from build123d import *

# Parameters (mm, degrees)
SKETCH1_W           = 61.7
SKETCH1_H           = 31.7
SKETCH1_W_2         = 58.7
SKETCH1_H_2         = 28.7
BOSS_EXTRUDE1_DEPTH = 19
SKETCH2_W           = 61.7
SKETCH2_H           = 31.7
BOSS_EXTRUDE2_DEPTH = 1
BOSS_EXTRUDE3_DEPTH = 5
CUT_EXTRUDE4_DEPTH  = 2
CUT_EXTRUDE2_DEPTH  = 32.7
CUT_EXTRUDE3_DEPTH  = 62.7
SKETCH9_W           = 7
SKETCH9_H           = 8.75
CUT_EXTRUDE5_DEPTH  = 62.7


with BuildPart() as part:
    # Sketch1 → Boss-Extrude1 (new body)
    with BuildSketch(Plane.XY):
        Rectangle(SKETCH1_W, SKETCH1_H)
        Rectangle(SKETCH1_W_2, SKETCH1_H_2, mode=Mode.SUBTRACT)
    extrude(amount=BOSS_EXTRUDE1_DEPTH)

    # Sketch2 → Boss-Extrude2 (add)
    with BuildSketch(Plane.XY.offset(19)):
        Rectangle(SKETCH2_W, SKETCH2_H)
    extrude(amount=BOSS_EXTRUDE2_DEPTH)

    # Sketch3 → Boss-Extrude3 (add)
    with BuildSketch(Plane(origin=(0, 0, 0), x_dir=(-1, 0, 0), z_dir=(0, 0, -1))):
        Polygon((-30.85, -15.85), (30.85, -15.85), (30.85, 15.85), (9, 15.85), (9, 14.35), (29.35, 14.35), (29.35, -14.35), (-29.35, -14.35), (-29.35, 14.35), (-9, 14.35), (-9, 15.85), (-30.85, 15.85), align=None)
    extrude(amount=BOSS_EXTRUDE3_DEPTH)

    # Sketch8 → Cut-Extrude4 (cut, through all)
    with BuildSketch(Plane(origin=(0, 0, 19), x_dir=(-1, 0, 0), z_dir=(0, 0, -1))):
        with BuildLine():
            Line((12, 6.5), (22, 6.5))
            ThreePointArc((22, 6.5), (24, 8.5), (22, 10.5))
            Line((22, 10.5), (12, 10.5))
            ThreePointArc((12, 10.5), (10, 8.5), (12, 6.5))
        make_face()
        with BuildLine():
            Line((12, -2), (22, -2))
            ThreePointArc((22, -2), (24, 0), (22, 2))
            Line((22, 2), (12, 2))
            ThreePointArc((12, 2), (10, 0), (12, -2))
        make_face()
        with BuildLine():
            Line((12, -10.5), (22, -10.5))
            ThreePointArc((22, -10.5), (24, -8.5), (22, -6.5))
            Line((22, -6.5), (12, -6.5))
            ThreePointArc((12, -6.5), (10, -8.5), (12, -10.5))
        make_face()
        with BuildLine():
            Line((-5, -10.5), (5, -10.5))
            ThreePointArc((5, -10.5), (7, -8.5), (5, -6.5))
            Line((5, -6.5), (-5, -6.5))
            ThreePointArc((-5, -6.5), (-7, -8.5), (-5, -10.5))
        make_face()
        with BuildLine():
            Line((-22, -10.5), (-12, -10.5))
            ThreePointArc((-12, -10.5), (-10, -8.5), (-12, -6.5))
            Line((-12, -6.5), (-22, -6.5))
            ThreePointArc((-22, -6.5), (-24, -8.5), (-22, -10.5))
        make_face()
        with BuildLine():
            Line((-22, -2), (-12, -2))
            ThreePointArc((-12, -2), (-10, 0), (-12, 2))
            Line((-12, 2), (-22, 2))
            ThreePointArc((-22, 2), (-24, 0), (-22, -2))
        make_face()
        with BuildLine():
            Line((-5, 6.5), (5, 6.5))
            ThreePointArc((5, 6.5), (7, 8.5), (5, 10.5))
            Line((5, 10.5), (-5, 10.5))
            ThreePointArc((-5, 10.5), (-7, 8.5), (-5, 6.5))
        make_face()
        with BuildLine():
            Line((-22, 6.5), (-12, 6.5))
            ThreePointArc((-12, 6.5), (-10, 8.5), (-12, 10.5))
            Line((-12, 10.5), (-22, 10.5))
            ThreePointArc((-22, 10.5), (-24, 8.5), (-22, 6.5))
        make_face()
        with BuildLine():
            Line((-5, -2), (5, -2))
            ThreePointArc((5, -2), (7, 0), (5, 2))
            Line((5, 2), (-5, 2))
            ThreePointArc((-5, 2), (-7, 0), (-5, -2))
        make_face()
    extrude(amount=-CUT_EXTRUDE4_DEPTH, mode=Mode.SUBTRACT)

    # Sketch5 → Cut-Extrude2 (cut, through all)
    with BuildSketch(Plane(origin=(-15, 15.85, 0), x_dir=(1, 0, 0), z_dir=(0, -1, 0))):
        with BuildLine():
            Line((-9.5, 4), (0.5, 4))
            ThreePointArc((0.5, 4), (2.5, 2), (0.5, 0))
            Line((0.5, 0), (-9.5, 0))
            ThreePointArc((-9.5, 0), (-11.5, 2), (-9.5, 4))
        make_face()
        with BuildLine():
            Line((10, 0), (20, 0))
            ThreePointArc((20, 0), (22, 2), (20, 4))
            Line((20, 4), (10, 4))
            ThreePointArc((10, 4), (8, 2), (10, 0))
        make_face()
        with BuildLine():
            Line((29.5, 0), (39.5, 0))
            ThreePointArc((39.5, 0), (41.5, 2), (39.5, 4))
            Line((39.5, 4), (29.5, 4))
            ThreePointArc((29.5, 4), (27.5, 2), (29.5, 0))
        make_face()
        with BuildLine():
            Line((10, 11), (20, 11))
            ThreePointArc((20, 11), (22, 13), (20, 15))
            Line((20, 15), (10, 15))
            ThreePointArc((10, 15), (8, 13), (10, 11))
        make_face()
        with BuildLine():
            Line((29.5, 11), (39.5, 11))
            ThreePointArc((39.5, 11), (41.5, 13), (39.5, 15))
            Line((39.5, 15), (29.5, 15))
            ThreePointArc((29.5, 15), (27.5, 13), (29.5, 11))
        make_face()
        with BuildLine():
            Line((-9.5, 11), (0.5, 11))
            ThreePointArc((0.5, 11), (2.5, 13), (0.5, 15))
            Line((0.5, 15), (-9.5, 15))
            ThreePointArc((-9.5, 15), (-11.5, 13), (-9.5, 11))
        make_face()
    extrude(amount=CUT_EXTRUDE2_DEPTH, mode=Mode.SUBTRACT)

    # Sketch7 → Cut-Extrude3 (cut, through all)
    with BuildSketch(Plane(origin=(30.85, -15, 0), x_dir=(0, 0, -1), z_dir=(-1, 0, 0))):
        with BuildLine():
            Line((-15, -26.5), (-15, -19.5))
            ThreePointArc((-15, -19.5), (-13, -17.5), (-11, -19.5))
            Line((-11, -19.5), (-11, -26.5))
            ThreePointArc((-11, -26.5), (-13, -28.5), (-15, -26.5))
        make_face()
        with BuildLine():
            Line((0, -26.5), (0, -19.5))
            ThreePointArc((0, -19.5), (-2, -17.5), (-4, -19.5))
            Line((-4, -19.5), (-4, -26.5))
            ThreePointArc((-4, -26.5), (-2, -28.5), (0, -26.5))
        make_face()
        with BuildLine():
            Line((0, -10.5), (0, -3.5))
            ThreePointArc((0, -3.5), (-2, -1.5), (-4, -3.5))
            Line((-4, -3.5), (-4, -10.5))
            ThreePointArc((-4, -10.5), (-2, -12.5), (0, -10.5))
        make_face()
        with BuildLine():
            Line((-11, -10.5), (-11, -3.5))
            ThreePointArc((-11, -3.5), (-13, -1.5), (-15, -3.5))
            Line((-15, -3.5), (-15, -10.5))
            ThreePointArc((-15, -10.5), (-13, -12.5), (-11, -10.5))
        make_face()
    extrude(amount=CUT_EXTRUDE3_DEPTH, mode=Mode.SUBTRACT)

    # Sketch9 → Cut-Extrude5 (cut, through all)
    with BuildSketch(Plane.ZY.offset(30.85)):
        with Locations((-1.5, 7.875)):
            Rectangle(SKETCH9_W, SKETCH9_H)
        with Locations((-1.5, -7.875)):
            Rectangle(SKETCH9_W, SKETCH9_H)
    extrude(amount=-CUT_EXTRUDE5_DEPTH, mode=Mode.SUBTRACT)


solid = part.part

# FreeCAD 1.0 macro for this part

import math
import FreeCAD as App
import Part
import Sketcher

V = App.Vector
Q = App.Units.Quantity


def add_polygon(sketch, points):
    """Adds a closed chain of lines whose ends are joined by coincident constraints."""
    first, n = sketch.GeometryCount, len(points)
    for a, b in zip(points, points[1:] + points[:1]):
        sketch.addGeometry(Part.LineSegment(App.Vector(*a, 0), App.Vector(*b, 0)), False)
    for i in range(n):
        sketch.addConstraint(Sketcher.Constraint("Coincident", first + i, 2, first + (i + 1) % n, 1))

doc = App.newDocument("Part")
params = doc.addObject("Spreadsheet::Sheet", "Params")
for row, (alias, value) in enumerate([
    ("sketch1_width", "61.7 mm"),
    ("sketch1_width2", "58.7 mm"),
    ("sketch1_height", "31.7 mm"),
    ("sketch1_height2", "28.7 mm"),
    ("pad1_length", "19 mm"),
    ("sketch2_width", "61.7 mm"),
    ("sketch2_height", "31.7 mm"),
    ("pad2_length", "1 mm"),
    ("sketch3_width", "61.7 mm"),
    ("sketch3_width2", "58.7 mm"),
    ("sketch3_height", "31.7 mm"),
    ("sketch3_height2", "1.5 mm"),
    ("pad3_length", "5 mm"),
    ("sketch4_radius", "2 mm"),
    ("sketch4_width", "10 mm"),
    ("sketch5_radius", "2 mm"),
    ("sketch5_width", "10 mm"),
    ("sketch6_radius", "2 mm"),
    ("sketch6_width", "7 mm"),
    ("sketch7_height", "7 mm"),
    ("sketch7_width", "8.75 mm"),
], start=1):
    params.set(f"A{row}", alias)
    params.set(f"B{row}", "=" + value)
    params.setAlias(f"B{row}", alias)

body = doc.addObject("PartDesign::Body", "Body")

# Sketch on XY plane
sketch1 = body.newObject("Sketcher::SketchObject", "Sketch")
sketch1.AttachmentSupport = (doc.getObject("XY_Plane"), [""])
sketch1.MapMode = "FlatFace"
add_polygon(sketch1, [(-31, 16), (-31, -16), (31, -16), (31, 16)])  # lines 0-3
add_polygon(sketch1, [(29, -14), (-29, -14), (-29, 14), (29, 14)])  # lines 4-7
sketch1.addConstraint(Sketcher.Constraint("Vertical", 0))
sketch1.addConstraint(Sketcher.Constraint("Horizontal", 1))
sketch1.addConstraint(Sketcher.Constraint("Vertical", 2))
sketch1.addConstraint(Sketcher.Constraint("Horizontal", 3))
sketch1.addConstraint(Sketcher.Constraint("Horizontal", 4))
sketch1.addConstraint(Sketcher.Constraint("Vertical", 5))
sketch1.addConstraint(Sketcher.Constraint("Horizontal", 6))
sketch1.addConstraint(Sketcher.Constraint("Vertical", 7))
sketch1.addConstraint(Sketcher.Constraint("Symmetric", 0, 2, 2, 2, -1, 1))
sketch1.addConstraint(Sketcher.Constraint("Symmetric", 4, 2, 6, 2, -1, 1))
sketch1.addConstraint(Sketcher.Constraint("DistanceX", 1, 1, 1, 2, Q("61.7 mm")))
sketch1.addConstraint(Sketcher.Constraint("DistanceX", 4, 2, 4, 1, Q("58.7 mm")))
sketch1.addConstraint(Sketcher.Constraint("DistanceY", 0, 2, 0, 1, Q("31.7 mm")))
sketch1.addConstraint(Sketcher.Constraint("DistanceY", 5, 1, 5, 2, Q("28.7 mm")))
sketch1.setExpression("Constraints[18]", "Params.sketch1_width")
sketch1.setExpression("Constraints[19]", "Params.sketch1_width2")
sketch1.setExpression("Constraints[20]", "Params.sketch1_height")
sketch1.setExpression("Constraints[21]", "Params.sketch1_height2")
pad1 = body.newObject("PartDesign::Pad", "Pad")
pad1.Profile = sketch1
pad1.setExpression("Length", "Params.pad1_length")

# Sketch on XY plane
sketch2 = body.newObject("Sketcher::SketchObject", "Sketch001")
sketch2.AttachmentSupport = (doc.getObject("XY_Plane"), [""])
sketch2.MapMode = "FlatFace"
sketch2.AttachmentOffset = App.Placement(V(0, 0, 19), App.Rotation())
add_polygon(sketch2, [(-31, 16), (-31, -16), (31, -16), (31, 16)])  # lines 0-3
sketch2.addConstraint(Sketcher.Constraint("Vertical", 0))
sketch2.addConstraint(Sketcher.Constraint("Horizontal", 1))
sketch2.addConstraint(Sketcher.Constraint("Vertical", 2))
sketch2.addConstraint(Sketcher.Constraint("Horizontal", 3))
sketch2.addConstraint(Sketcher.Constraint("Symmetric", 0, 2, 2, 2, -1, 1))
sketch2.addConstraint(Sketcher.Constraint("DistanceX", 1, 1, 1, 2, Q("61.7 mm")))
sketch2.addConstraint(Sketcher.Constraint("DistanceY", 0, 2, 0, 1, Q("31.7 mm")))
sketch2.setExpression("Constraints[9]", "Params.sketch2_width")
sketch2.setExpression("Constraints[10]", "Params.sketch2_height")
pad2 = body.newObject("PartDesign::Pad", "Pad001")
pad2.Profile = sketch2
pad2.setExpression("Length", "Params.pad2_length")

# Sketch on XY plane
sketch3 = body.newObject("Sketcher::SketchObject", "Sketch002")
sketch3.AttachmentSupport = (doc.getObject("XY_Plane"), [""])
sketch3.MapMode = "FlatFace"
add_polygon(sketch3, [(30.9, -15.8), (-30.9, -15.8), (-30.9, 15.8), (-9, 15.8), (-9, 14.3), (-29.4, 14.3), (-29.4, -14.3), (29.4, -14.3), (29.4, 14.3), (9, 14.3), (9, 15.8), (30.9, 15.8)])  # lines 0-11
sketch3.addConstraint(Sketcher.Constraint("Horizontal", 0))
sketch3.addConstraint(Sketcher.Constraint("Vertical", 1))
sketch3.addConstraint(Sketcher.Constraint("Horizontal", 2))
sketch3.addConstraint(Sketcher.Constraint("Vertical", 3))
sketch3.addConstraint(Sketcher.Constraint("Horizontal", 4))
sketch3.addConstraint(Sketcher.Constraint("Vertical", 5))
sketch3.addConstraint(Sketcher.Constraint("Horizontal", 6))
sketch3.addConstraint(Sketcher.Constraint("Vertical", 7))
sketch3.addConstraint(Sketcher.Constraint("Horizontal", 8))
sketch3.addConstraint(Sketcher.Constraint("Vertical", 9))
sketch3.addConstraint(Sketcher.Constraint("Horizontal", 10))
sketch3.addConstraint(Sketcher.Constraint("Vertical", 11))
sketch3.addConstraint(Sketcher.Constraint("Symmetric", 4, 2, 6, 2, -1, 1))
sketch3.addConstraint(Sketcher.Constraint("Symmetric", 0, 2, 10, 2, -1, 1))
sketch3.addConstraint(Sketcher.Constraint("Symmetric", 3, 2, 8, 2, -2))
sketch3.addConstraint(Sketcher.Constraint("Horizontal", 2, 2, 9, 2))
sketch3.addConstraint(Sketcher.Constraint("DistanceX", 0, 2, 0, 1, Q("61.7 mm")))
sketch3.addConstraint(Sketcher.Constraint("DistanceX", 6, 1, 6, 2, Q("58.7 mm")))
sketch3.addConstraint(Sketcher.Constraint("DistanceY", 1, 1, 1, 2, Q("31.7 mm")))
sketch3.addConstraint(Sketcher.Constraint("DistanceY", 3, 2, 3, 1, Q("1.5 mm")))
sketch3.addConstraint(Sketcher.Constraint("DistanceX", 2, 2, -1, 1, Q("9 mm")))
sketch3.setExpression("Constraints[28]", "Params.sketch3_width")
sketch3.setExpression("Constraints[29]", "Params.sketch3_width2")
sketch3.setExpression("Constraints[30]", "Params.sketch3_height")
sketch3.setExpression("Constraints[31]", "Params.sketch3_height2")
pad3 = body.newObject("PartDesign::Pad", "Pad002")
pad3.Profile = sketch3
pad3.setExpression("Length", "Params.pad3_length")
pad3.Reversed = True

# Sketch on XY plane
sketch4 = body.newObject("Sketcher::SketchObject", "Sketch003")
sketch4.AttachmentSupport = (doc.getObject("XY_Plane"), [""])
sketch4.MapMode = "FlatFace"
sketch4.AttachmentOffset = App.Placement(V(0, 0, 19), App.Rotation())
sketch4.addGeometry(Part.LineSegment(V(-12, 6.5, 0), V(-22, 6.5, 0)), False)
sketch4.addGeometry(Part.ArcOfCircle(Part.Circle(V(-22, 8.5, 0), V(0, 0, 1), 2), math.radians(90), math.radians(270)), False)
sketch4.addGeometry(Part.LineSegment(V(-22, 10.5, 0), V(-12, 10.5, 0)), False)
sketch4.addGeometry(Part.ArcOfCircle(Part.Circle(V(-12, 8.5, 0), V(0, 0, 1), 2), math.radians(-90), math.radians(90)), False)
sketch4.addGeometry(Part.LineSegment(V(-12, -2, 0), V(-22, -2, 0)), False)
sketch4.addGeometry(Part.ArcOfCircle(Part.Circle(V(-22, 0, 0), V(0, 0, 1), 2), math.radians(90), math.radians(270)), False)
sketch4.addGeometry(Part.LineSegment(V(-22, 2, 0), V(-12, 2, 0)), False)
sketch4.addGeometry(Part.ArcOfCircle(Part.Circle(V(-12, 0, 0), V(0, 0, 1), 2), math.radians(-90), math.radians(90)), False)
sketch4.addGeometry(Part.LineSegment(V(-12, -10.5, 0), V(-22, -10.5, 0)), False)
sketch4.addGeometry(Part.ArcOfCircle(Part.Circle(V(-22, -8.5, 0), V(0, 0, 1), 2), math.radians(90), math.radians(270)), False)
sketch4.addGeometry(Part.LineSegment(V(-22, -6.5, 0), V(-12, -6.5, 0)), False)
sketch4.addGeometry(Part.ArcOfCircle(Part.Circle(V(-12, -8.5, 0), V(0, 0, 1), 2), math.radians(-90), math.radians(90)), False)
sketch4.addGeometry(Part.LineSegment(V(5, -10.5, 0), V(-5, -10.5, 0)), False)
sketch4.addGeometry(Part.ArcOfCircle(Part.Circle(V(-5, -8.5, 0), V(0, 0, 1), 2), math.radians(90), math.radians(270)), False)
sketch4.addGeometry(Part.LineSegment(V(-5, -6.5, 0), V(5, -6.5, 0)), False)
sketch4.addGeometry(Part.ArcOfCircle(Part.Circle(V(5, -8.5, 0), V(0, 0, 1), 2), math.radians(-90), math.radians(90)), False)
sketch4.addGeometry(Part.LineSegment(V(22, -10.5, 0), V(12, -10.5, 0)), False)
sketch4.addGeometry(Part.ArcOfCircle(Part.Circle(V(12, -8.5, 0), V(0, 0, 1), 2), math.radians(90), math.radians(270)), False)
sketch4.addGeometry(Part.LineSegment(V(12, -6.5, 0), V(22, -6.5, 0)), False)
sketch4.addGeometry(Part.ArcOfCircle(Part.Circle(V(22, -8.5, 0), V(0, 0, 1), 2), math.radians(-90), math.radians(90)), False)
sketch4.addGeometry(Part.LineSegment(V(22, -2, 0), V(12, -2, 0)), False)
sketch4.addGeometry(Part.ArcOfCircle(Part.Circle(V(12, 0, 0), V(0, 0, 1), 2), math.radians(90), math.radians(270)), False)
sketch4.addGeometry(Part.LineSegment(V(12, 2, 0), V(22, 2, 0)), False)
sketch4.addGeometry(Part.ArcOfCircle(Part.Circle(V(22, 0, 0), V(0, 0, 1), 2), math.radians(-90), math.radians(90)), False)
sketch4.addGeometry(Part.LineSegment(V(5, 6.5, 0), V(-5, 6.5, 0)), False)
sketch4.addGeometry(Part.ArcOfCircle(Part.Circle(V(-5, 8.5, 0), V(0, 0, 1), 2), math.radians(90), math.radians(270)), False)
sketch4.addGeometry(Part.LineSegment(V(-5, 10.5, 0), V(5, 10.5, 0)), False)
sketch4.addGeometry(Part.ArcOfCircle(Part.Circle(V(5, 8.5, 0), V(0, 0, 1), 2), math.radians(-90), math.radians(90)), False)
sketch4.addGeometry(Part.LineSegment(V(22, 6.5, 0), V(12, 6.5, 0)), False)
sketch4.addGeometry(Part.ArcOfCircle(Part.Circle(V(12, 8.5, 0), V(0, 0, 1), 2), math.radians(90), math.radians(270)), False)
sketch4.addGeometry(Part.LineSegment(V(12, 10.5, 0), V(22, 10.5, 0)), False)
sketch4.addGeometry(Part.ArcOfCircle(Part.Circle(V(22, 8.5, 0), V(0, 0, 1), 2), math.radians(-90), math.radians(90)), False)
sketch4.addGeometry(Part.LineSegment(V(5, -2, 0), V(-5, -2, 0)), False)
sketch4.addGeometry(Part.ArcOfCircle(Part.Circle(V(-5, 0, 0), V(0, 0, 1), 2), math.radians(90), math.radians(270)), False)
sketch4.addGeometry(Part.LineSegment(V(-5, 2, 0), V(5, 2, 0)), False)
sketch4.addGeometry(Part.ArcOfCircle(Part.Circle(V(5, 0, 0), V(0, 0, 1), 2), math.radians(-90), math.radians(90)), False)
sketch4.addConstraint(Sketcher.Constraint("Tangent", 0, 2, 1, 2))
sketch4.addConstraint(Sketcher.Constraint("Tangent", 1, 1, 2, 1))
sketch4.addConstraint(Sketcher.Constraint("Tangent", 2, 2, 3, 2))
sketch4.addConstraint(Sketcher.Constraint("Tangent", 3, 1, 0, 1))
sketch4.addConstraint(Sketcher.Constraint("Tangent", 4, 2, 5, 2))
sketch4.addConstraint(Sketcher.Constraint("Tangent", 5, 1, 6, 1))
sketch4.addConstraint(Sketcher.Constraint("Tangent", 6, 2, 7, 2))
sketch4.addConstraint(Sketcher.Constraint("Tangent", 7, 1, 4, 1))
sketch4.addConstraint(Sketcher.Constraint("Tangent", 8, 2, 9, 2))
sketch4.addConstraint(Sketcher.Constraint("Tangent", 9, 1, 10, 1))
sketch4.addConstraint(Sketcher.Constraint("Tangent", 10, 2, 11, 2))
sketch4.addConstraint(Sketcher.Constraint("Tangent", 11, 1, 8, 1))
sketch4.addConstraint(Sketcher.Constraint("Tangent", 12, 2, 13, 2))
sketch4.addConstraint(Sketcher.Constraint("Tangent", 13, 1, 14, 1))
sketch4.addConstraint(Sketcher.Constraint("Tangent", 14, 2, 15, 2))
sketch4.addConstraint(Sketcher.Constraint("Tangent", 15, 1, 12, 1))
sketch4.addConstraint(Sketcher.Constraint("Tangent", 16, 2, 17, 2))
sketch4.addConstraint(Sketcher.Constraint("Tangent", 17, 1, 18, 1))
sketch4.addConstraint(Sketcher.Constraint("Tangent", 18, 2, 19, 2))
sketch4.addConstraint(Sketcher.Constraint("Tangent", 19, 1, 16, 1))
sketch4.addConstraint(Sketcher.Constraint("Tangent", 20, 2, 21, 2))
sketch4.addConstraint(Sketcher.Constraint("Tangent", 21, 1, 22, 1))
sketch4.addConstraint(Sketcher.Constraint("Tangent", 22, 2, 23, 2))
sketch4.addConstraint(Sketcher.Constraint("Tangent", 23, 1, 20, 1))
sketch4.addConstraint(Sketcher.Constraint("Tangent", 24, 2, 25, 2))
sketch4.addConstraint(Sketcher.Constraint("Tangent", 25, 1, 26, 1))
sketch4.addConstraint(Sketcher.Constraint("Tangent", 26, 2, 27, 2))
sketch4.addConstraint(Sketcher.Constraint("Tangent", 27, 1, 24, 1))
sketch4.addConstraint(Sketcher.Constraint("Tangent", 28, 2, 29, 2))
sketch4.addConstraint(Sketcher.Constraint("Tangent", 29, 1, 30, 1))
sketch4.addConstraint(Sketcher.Constraint("Tangent", 30, 2, 31, 2))
sketch4.addConstraint(Sketcher.Constraint("Tangent", 31, 1, 28, 1))
sketch4.addConstraint(Sketcher.Constraint("Tangent", 32, 2, 33, 2))
sketch4.addConstraint(Sketcher.Constraint("Tangent", 33, 1, 34, 1))
sketch4.addConstraint(Sketcher.Constraint("Tangent", 34, 2, 35, 2))
sketch4.addConstraint(Sketcher.Constraint("Tangent", 35, 1, 32, 1))
sketch4.addConstraint(Sketcher.Constraint("Horizontal", 0))
sketch4.addConstraint(Sketcher.Constraint("Horizontal", 2))
sketch4.addConstraint(Sketcher.Constraint("Horizontal", 4))
sketch4.addConstraint(Sketcher.Constraint("Horizontal", 6))
sketch4.addConstraint(Sketcher.Constraint("Horizontal", 8))
sketch4.addConstraint(Sketcher.Constraint("Horizontal", 10))
sketch4.addConstraint(Sketcher.Constraint("Horizontal", 12))
sketch4.addConstraint(Sketcher.Constraint("Horizontal", 14))
sketch4.addConstraint(Sketcher.Constraint("Horizontal", 16))
sketch4.addConstraint(Sketcher.Constraint("Horizontal", 18))
sketch4.addConstraint(Sketcher.Constraint("Horizontal", 20))
sketch4.addConstraint(Sketcher.Constraint("Horizontal", 22))
sketch4.addConstraint(Sketcher.Constraint("Horizontal", 24))
sketch4.addConstraint(Sketcher.Constraint("Horizontal", 26))
sketch4.addConstraint(Sketcher.Constraint("Horizontal", 28))
sketch4.addConstraint(Sketcher.Constraint("Horizontal", 30))
sketch4.addConstraint(Sketcher.Constraint("Horizontal", 32))
sketch4.addConstraint(Sketcher.Constraint("Horizontal", 34))
sketch4.addConstraint(Sketcher.Constraint("Equal", 3, 5))
sketch4.addConstraint(Sketcher.Constraint("Equal", 7, 9))
sketch4.addConstraint(Sketcher.Constraint("Equal", 11, 13))
sketch4.addConstraint(Sketcher.Constraint("Equal", 15, 17))
sketch4.addConstraint(Sketcher.Constraint("Equal", 19, 21))
sketch4.addConstraint(Sketcher.Constraint("Equal", 23, 25))
sketch4.addConstraint(Sketcher.Constraint("Equal", 27, 29))
sketch4.addConstraint(Sketcher.Constraint("Equal", 31, 33))
sketch4.addConstraint(Sketcher.Constraint("Symmetric", 3, 3, 17, 3, -1, 1))
sketch4.addConstraint(Sketcher.Constraint("Symmetric", 7, 3, 21, 3, -1, 1))
sketch4.addConstraint(Sketcher.Constraint("Symmetric", 15, 3, 25, 3, -1, 1))
sketch4.addConstraint(Sketcher.Constraint("Symmetric", 11, 3, 29, 3, -1, 1))
sketch4.addConstraint(Sketcher.Constraint("Symmetric", 33, 3, 35, 3, -1, 1))
sketch4.addConstraint(Sketcher.Constraint("Symmetric", 11, 3, 17, 3, -2))
sketch4.addConstraint(Sketcher.Constraint("Symmetric", 5, 3, 23, 3, -2))
sketch4.addConstraint(Sketcher.Constraint("Horizontal", 11, 3, 13, 3))
sketch4.addConstraint(Sketcher.Constraint("Vertical", 1, 3, 5, 3))
sketch4.addConstraint(Sketcher.Constraint("Vertical", 3, 3, 7, 3))
sketch4.addConstraint(Sketcher.Constraint("Vertical", 5, 3, 9, 3))
sketch4.addConstraint(Sketcher.Constraint("Vertical", 19, 3, 23, 3))
sketch4.addConstraint(Sketcher.Constraint("Vertical", 13, 3, 25, 3))
sketch4.addConstraint(Sketcher.Constraint("Vertical", 15, 3, 27, 3))
sketch4.addConstraint(Sketcher.Constraint("Vertical", 23, 3, 31, 3))
sketch4.addConstraint(Sketcher.Constraint("Vertical", 25, 3, 33, 3))
sketch4.addConstraint(Sketcher.Constraint("Equal", 10, 12))
sketch4.addConstraint(Sketcher.Constraint("Radius", 1, Q("2 mm")))
sketch4.addConstraint(Sketcher.Constraint("DistanceX", 0, 2, 0, 1, Q("10 mm")))
sketch4.addConstraint(Sketcher.Constraint("DistanceX", 1, 3, -1, 1, Q("22 mm")))
sketch4.addConstraint(Sketcher.Constraint("DistanceY", 9, 3, 1, 3, Q("17 mm")))
sketch4.setExpression("Constraints[79]", "Params.sketch4_radius")
sketch4.setExpression("Constraints[80]", "Params.sketch4_width")
pocket1 = body.newObject("PartDesign::Pocket", "Pocket")
pocket1.Profile = sketch4
pocket1.Type = "ThroughAll"
pocket1.Reversed = True

# Sketch on XZ plane
sketch5 = body.newObject("Sketcher::SketchObject", "Sketch004")
sketch5.AttachmentSupport = (doc.getObject("XZ_Plane"), [""])
sketch5.MapMode = "FlatFace"
sketch5.AttachmentOffset = App.Placement(V(0, 0, -15.85), App.Rotation())
sketch5.addGeometry(Part.LineSegment(V(-14.5, 4, 0), V(-24.5, 4, 0)), False)
sketch5.addGeometry(Part.ArcOfCircle(Part.Circle(V(-24.5, 2, 0), V(0, 0, 1), 2), math.radians(90), math.radians(270)), False)
sketch5.addGeometry(Part.LineSegment(V(-24.5, 0, 0), V(-14.5, 0, 0)), False)
sketch5.addGeometry(Part.ArcOfCircle(Part.Circle(V(-14.5, 2, 0), V(0, 0, 1), 2), math.radians(-90), math.radians(90)), False)
sketch5.addGeometry(Part.LineSegment(V(-5, 0, 0), V(5, 0, 0)), False)
sketch5.addGeometry(Part.ArcOfCircle(Part.Circle(V(5, 2, 0), V(0, 0, 1), 2), math.radians(-90), math.radians(90)), False)
sketch5.addGeometry(Part.LineSegment(V(5, 4, 0), V(-5, 4, 0)), False)
sketch5.addGeometry(Part.ArcOfCircle(Part.Circle(V(-5, 2, 0), V(0, 0, 1), 2), math.radians(90), math.radians(270)), False)
sketch5.addGeometry(Part.LineSegment(V(14.5, 0, 0), V(24.5, 0, 0)), False)
sketch5.addGeometry(Part.ArcOfCircle(Part.Circle(V(24.5, 2, 0), V(0, 0, 1), 2), math.radians(-90), math.radians(90)), False)
sketch5.addGeometry(Part.LineSegment(V(24.5, 4, 0), V(14.5, 4, 0)), False)
sketch5.addGeometry(Part.ArcOfCircle(Part.Circle(V(14.5, 2, 0), V(0, 0, 1), 2), math.radians(90), math.radians(270)), False)
sketch5.addGeometry(Part.LineSegment(V(-5, 11, 0), V(5, 11, 0)), False)
sketch5.addGeometry(Part.ArcOfCircle(Part.Circle(V(5, 13, 0), V(0, 0, 1), 2), math.radians(-90), math.radians(90)), False)
sketch5.addGeometry(Part.LineSegment(V(5, 15, 0), V(-5, 15, 0)), False)
sketch5.addGeometry(Part.ArcOfCircle(Part.Circle(V(-5, 13, 0), V(0, 0, 1), 2), math.radians(90), math.radians(270)), False)
sketch5.addGeometry(Part.LineSegment(V(14.5, 11, 0), V(24.5, 11, 0)), False)
sketch5.addGeometry(Part.ArcOfCircle(Part.Circle(V(24.5, 13, 0), V(0, 0, 1), 2), math.radians(-90), math.radians(90)), False)
sketch5.addGeometry(Part.LineSegment(V(24.5, 15, 0), V(14.5, 15, 0)), False)
sketch5.addGeometry(Part.ArcOfCircle(Part.Circle(V(14.5, 13, 0), V(0, 0, 1), 2), math.radians(90), math.radians(270)), False)
sketch5.addGeometry(Part.LineSegment(V(-24.5, 11, 0), V(-14.5, 11, 0)), False)
sketch5.addGeometry(Part.ArcOfCircle(Part.Circle(V(-14.5, 13, 0), V(0, 0, 1), 2), math.radians(-90), math.radians(90)), False)
sketch5.addGeometry(Part.LineSegment(V(-14.5, 15, 0), V(-24.5, 15, 0)), False)
sketch5.addGeometry(Part.ArcOfCircle(Part.Circle(V(-24.5, 13, 0), V(0, 0, 1), 2), math.radians(90), math.radians(270)), False)
sketch5.addConstraint(Sketcher.Constraint("Tangent", 0, 2, 1, 1))
sketch5.addConstraint(Sketcher.Constraint("Tangent", 1, 2, 2, 1))
sketch5.addConstraint(Sketcher.Constraint("Tangent", 2, 2, 3, 1))
sketch5.addConstraint(Sketcher.Constraint("Tangent", 3, 2, 0, 1))
sketch5.addConstraint(Sketcher.Constraint("Tangent", 4, 2, 5, 1))
sketch5.addConstraint(Sketcher.Constraint("Tangent", 5, 2, 6, 1))
sketch5.addConstraint(Sketcher.Constraint("Tangent", 6, 2, 7, 1))
sketch5.addConstraint(Sketcher.Constraint("Tangent", 7, 2, 4, 1))
sketch5.addConstraint(Sketcher.Constraint("Tangent", 8, 2, 9, 1))
sketch5.addConstraint(Sketcher.Constraint("Tangent", 9, 2, 10, 1))
sketch5.addConstraint(Sketcher.Constraint("Tangent", 10, 2, 11, 1))
sketch5.addConstraint(Sketcher.Constraint("Tangent", 11, 2, 8, 1))
sketch5.addConstraint(Sketcher.Constraint("Tangent", 12, 2, 13, 1))
sketch5.addConstraint(Sketcher.Constraint("Tangent", 13, 2, 14, 1))
sketch5.addConstraint(Sketcher.Constraint("Tangent", 14, 2, 15, 1))
sketch5.addConstraint(Sketcher.Constraint("Tangent", 15, 2, 12, 1))
sketch5.addConstraint(Sketcher.Constraint("Tangent", 16, 2, 17, 1))
sketch5.addConstraint(Sketcher.Constraint("Tangent", 17, 2, 18, 1))
sketch5.addConstraint(Sketcher.Constraint("Tangent", 18, 2, 19, 1))
sketch5.addConstraint(Sketcher.Constraint("Tangent", 19, 2, 16, 1))
sketch5.addConstraint(Sketcher.Constraint("Tangent", 20, 2, 21, 1))
sketch5.addConstraint(Sketcher.Constraint("Tangent", 21, 2, 22, 1))
sketch5.addConstraint(Sketcher.Constraint("Tangent", 22, 2, 23, 1))
sketch5.addConstraint(Sketcher.Constraint("Tangent", 23, 2, 20, 1))
sketch5.addConstraint(Sketcher.Constraint("Horizontal", 0))
sketch5.addConstraint(Sketcher.Constraint("Horizontal", 2))
sketch5.addConstraint(Sketcher.Constraint("Horizontal", 4))
sketch5.addConstraint(Sketcher.Constraint("Horizontal", 6))
sketch5.addConstraint(Sketcher.Constraint("Horizontal", 8))
sketch5.addConstraint(Sketcher.Constraint("Horizontal", 10))
sketch5.addConstraint(Sketcher.Constraint("Horizontal", 12))
sketch5.addConstraint(Sketcher.Constraint("Horizontal", 14))
sketch5.addConstraint(Sketcher.Constraint("Horizontal", 16))
sketch5.addConstraint(Sketcher.Constraint("Horizontal", 18))
sketch5.addConstraint(Sketcher.Constraint("Horizontal", 20))
sketch5.addConstraint(Sketcher.Constraint("Horizontal", 22))
sketch5.addConstraint(Sketcher.Constraint("Equal", 3, 5))
sketch5.addConstraint(Sketcher.Constraint("Equal", 7, 9))
sketch5.addConstraint(Sketcher.Constraint("Equal", 11, 13))
sketch5.addConstraint(Sketcher.Constraint("Equal", 15, 17))
sketch5.addConstraint(Sketcher.Constraint("Equal", 19, 21))
sketch5.addConstraint(Sketcher.Constraint("Symmetric", 4, 2, 7, 2, -1, 1))
sketch5.addConstraint(Sketcher.Constraint("Symmetric", 1, 2, 8, 2, -1, 1))
sketch5.addConstraint(Sketcher.Constraint("Symmetric", 3, 3, 11, 3, -2))
sketch5.addConstraint(Sketcher.Constraint("Symmetric", 19, 3, 21, 3, -2))
sketch5.addConstraint(Sketcher.Constraint("Horizontal", 15, 3, 17, 3))
sketch5.addConstraint(Sketcher.Constraint("Vertical", 5, 3, 13, 3))
sketch5.addConstraint(Sketcher.Constraint("Vertical", 7, 3, 15, 3))
sketch5.addConstraint(Sketcher.Constraint("Vertical", 9, 3, 17, 3))
sketch5.addConstraint(Sketcher.Constraint("Vertical", 11, 3, 19, 3))
sketch5.addConstraint(Sketcher.Constraint("Vertical", 1, 3, 23, 3))
sketch5.addConstraint(Sketcher.Constraint("Equal", 2, 4))
sketch5.addConstraint(Sketcher.Constraint("Radius", 1, Q("2 mm")))
sketch5.addConstraint(Sketcher.Constraint("DistanceX", 0, 2, 0, 1, Q("10 mm")))
sketch5.addConstraint(Sketcher.Constraint("DistanceY", -1, 1, 13, 3, Q("13 mm")))
sketch5.addConstraint(Sketcher.Constraint("DistanceX", 3, 3, 9, 3, Q("39 mm")))
sketch5.setExpression("Constraints[52]", "Params.sketch5_radius")
sketch5.setExpression("Constraints[53]", "Params.sketch5_width")
pocket2 = body.newObject("PartDesign::Pocket", "Pocket001")
pocket2.Profile = sketch5
pocket2.Type = "ThroughAll"
pocket2.Reversed = True

# Sketch on YZ plane
sketch6 = body.newObject("Sketcher::SketchObject", "Sketch005")
sketch6.AttachmentSupport = (doc.getObject("YZ_Plane"), [""])
sketch6.MapMode = "FlatFace"
sketch6.AttachmentOffset = App.Placement(V(0, 0, 30.85), App.Rotation())
sketch6.addGeometry(Part.LineSegment(V(4.5, 15, 0), V(11.5, 15, 0)), False)
sketch6.addGeometry(Part.ArcOfCircle(Part.Circle(V(11.5, 13, 0), V(0, 0, 1), 2), math.radians(-90), math.radians(90)), False)
sketch6.addGeometry(Part.LineSegment(V(11.5, 11, 0), V(4.5, 11, 0)), False)
sketch6.addGeometry(Part.ArcOfCircle(Part.Circle(V(4.5, 13, 0), V(0, 0, 1), 2), math.radians(90), math.radians(270)), False)
sketch6.addGeometry(Part.LineSegment(V(11.5, 0, 0), V(4.5, 0, 0)), False)
sketch6.addGeometry(Part.ArcOfCircle(Part.Circle(V(4.5, 2, 0), V(0, 0, 1), 2), math.radians(90), math.radians(270)), False)
sketch6.addGeometry(Part.LineSegment(V(4.5, 4, 0), V(11.5, 4, 0)), False)
sketch6.addGeometry(Part.ArcOfCircle(Part.Circle(V(11.5, 2, 0), V(0, 0, 1), 2), math.radians(-90), math.radians(90)), False)
sketch6.addGeometry(Part.LineSegment(V(-4.5, 0, 0), V(-11.5, 0, 0)), False)
sketch6.addGeometry(Part.ArcOfCircle(Part.Circle(V(-11.5, 2, 0), V(0, 0, 1), 2), math.radians(90), math.radians(270)), False)
sketch6.addGeometry(Part.LineSegment(V(-11.5, 4, 0), V(-4.5, 4, 0)), False)
sketch6.addGeometry(Part.ArcOfCircle(Part.Circle(V(-4.5, 2, 0), V(0, 0, 1), 2), math.radians(-90), math.radians(90)), False)
sketch6.addGeometry(Part.LineSegment(V(-4.5, 11, 0), V(-11.5, 11, 0)), False)
sketch6.addGeometry(Part.ArcOfCircle(Part.Circle(V(-11.5, 13, 0), V(0, 0, 1), 2), math.radians(90), math.radians(270)), False)
sketch6.addGeometry(Part.LineSegment(V(-11.5, 15, 0), V(-4.5, 15, 0)), False)
sketch6.addGeometry(Part.ArcOfCircle(Part.Circle(V(-4.5, 13, 0), V(0, 0, 1), 2), math.radians(-90), math.radians(90)), False)
sketch6.addConstraint(Sketcher.Constraint("Tangent", 0, 2, 1, 2))
sketch6.addConstraint(Sketcher.Constraint("Tangent", 1, 1, 2, 1))
sketch6.addConstraint(Sketcher.Constraint("Tangent", 2, 2, 3, 2))
sketch6.addConstraint(Sketcher.Constraint("Tangent", 3, 1, 0, 1))
sketch6.addConstraint(Sketcher.Constraint("Tangent", 4, 2, 5, 2))
sketch6.addConstraint(Sketcher.Constraint("Tangent", 5, 1, 6, 1))
sketch6.addConstraint(Sketcher.Constraint("Tangent", 6, 2, 7, 2))
sketch6.addConstraint(Sketcher.Constraint("Tangent", 7, 1, 4, 1))
sketch6.addConstraint(Sketcher.Constraint("Tangent", 8, 2, 9, 2))
sketch6.addConstraint(Sketcher.Constraint("Tangent", 9, 1, 10, 1))
sketch6.addConstraint(Sketcher.Constraint("Tangent", 10, 2, 11, 2))
sketch6.addConstraint(Sketcher.Constraint("Tangent", 11, 1, 8, 1))
sketch6.addConstraint(Sketcher.Constraint("Tangent", 12, 2, 13, 2))
sketch6.addConstraint(Sketcher.Constraint("Tangent", 13, 1, 14, 1))
sketch6.addConstraint(Sketcher.Constraint("Tangent", 14, 2, 15, 2))
sketch6.addConstraint(Sketcher.Constraint("Tangent", 15, 1, 12, 1))
sketch6.addConstraint(Sketcher.Constraint("Horizontal", 0))
sketch6.addConstraint(Sketcher.Constraint("Horizontal", 2))
sketch6.addConstraint(Sketcher.Constraint("Horizontal", 4))
sketch6.addConstraint(Sketcher.Constraint("Horizontal", 6))
sketch6.addConstraint(Sketcher.Constraint("Horizontal", 8))
sketch6.addConstraint(Sketcher.Constraint("Horizontal", 10))
sketch6.addConstraint(Sketcher.Constraint("Horizontal", 12))
sketch6.addConstraint(Sketcher.Constraint("Horizontal", 14))
sketch6.addConstraint(Sketcher.Constraint("Equal", 3, 5))
sketch6.addConstraint(Sketcher.Constraint("Equal", 7, 9))
sketch6.addConstraint(Sketcher.Constraint("Equal", 11, 13))
sketch6.addConstraint(Sketcher.Constraint("Symmetric", 7, 1, 8, 2, -1, 1))
sketch6.addConstraint(Sketcher.Constraint("Symmetric", 5, 3, 11, 3, -2))
sketch6.addConstraint(Sketcher.Constraint("Symmetric", 1, 3, 13, 3, -2))
sketch6.addConstraint(Sketcher.Constraint("Vertical", 3, 3, 5, 3))
sketch6.addConstraint(Sketcher.Constraint("Vertical", 1, 3, 7, 3))
sketch6.addConstraint(Sketcher.Constraint("Vertical", 11, 3, 15, 3))
sketch6.addConstraint(Sketcher.Constraint("Radius", 1, Q("2 mm")))
sketch6.addConstraint(Sketcher.Constraint("DistanceX", 0, 1, 0, 2, Q("7 mm")))
sketch6.addConstraint(Sketcher.Constraint("DistanceY", -1, 1, 1, 3, Q("13 mm")))
sketch6.addConstraint(Sketcher.Constraint("DistanceX", 9, 3, 5, 3, Q("16 mm")))
sketch6.setExpression("Constraints[33]", "Params.sketch6_radius")
sketch6.setExpression("Constraints[34]", "Params.sketch6_width")
pocket3 = body.newObject("PartDesign::Pocket", "Pocket002")
pocket3.Profile = sketch6
pocket3.Type = "ThroughAll"

# Sketch on YZ plane
sketch7 = body.newObject("Sketcher::SketchObject", "Sketch006")
sketch7.AttachmentSupport = (doc.getObject("YZ_Plane"), [""])
sketch7.MapMode = "FlatFace"
sketch7.AttachmentOffset = App.Placement(V(0, 0, -30.85), App.Rotation())
add_polygon(sketch7, [(12, -5), (4, -5), (4, 2), (12, 2)])  # lines 0-3
add_polygon(sketch7, [(-4, -5), (-12, -5), (-12, 2), (-4, 2)])  # lines 4-7
sketch7.addConstraint(Sketcher.Constraint("Horizontal", 0))
sketch7.addConstraint(Sketcher.Constraint("Vertical", 1))
sketch7.addConstraint(Sketcher.Constraint("Horizontal", 2))
sketch7.addConstraint(Sketcher.Constraint("Vertical", 3))
sketch7.addConstraint(Sketcher.Constraint("Horizontal", 4))
sketch7.addConstraint(Sketcher.Constraint("Vertical", 5))
sketch7.addConstraint(Sketcher.Constraint("Horizontal", 6))
sketch7.addConstraint(Sketcher.Constraint("Vertical", 7))
sketch7.addConstraint(Sketcher.Constraint("Symmetric", 3, 2, 4, 2, -2))
sketch7.addConstraint(Sketcher.Constraint("Symmetric", 1, 2, 6, 2, -2))
sketch7.addConstraint(Sketcher.Constraint("DistanceY", 1, 1, 1, 2, Q("7 mm")))
sketch7.addConstraint(Sketcher.Constraint("DistanceY", 0, 2, -1, 1, Q("5 mm")))
sketch7.addConstraint(Sketcher.Constraint("DistanceX", 6, 2, 1, 2, Q("7 mm")))
sketch7.addConstraint(Sketcher.Constraint("DistanceX", 0, 2, 0, 1, Q("8.75 mm")))
sketch7.setExpression("Constraints[18]", "Params.sketch7_height")
sketch7.setExpression("Constraints[21]", "Params.sketch7_width")
pocket4 = body.newObject("PartDesign::Pocket", "Pocket003")
pocket4.Profile = sketch7
pocket4.Type = "ThroughAll"
pocket4.Reversed = True

doc.recompute()
